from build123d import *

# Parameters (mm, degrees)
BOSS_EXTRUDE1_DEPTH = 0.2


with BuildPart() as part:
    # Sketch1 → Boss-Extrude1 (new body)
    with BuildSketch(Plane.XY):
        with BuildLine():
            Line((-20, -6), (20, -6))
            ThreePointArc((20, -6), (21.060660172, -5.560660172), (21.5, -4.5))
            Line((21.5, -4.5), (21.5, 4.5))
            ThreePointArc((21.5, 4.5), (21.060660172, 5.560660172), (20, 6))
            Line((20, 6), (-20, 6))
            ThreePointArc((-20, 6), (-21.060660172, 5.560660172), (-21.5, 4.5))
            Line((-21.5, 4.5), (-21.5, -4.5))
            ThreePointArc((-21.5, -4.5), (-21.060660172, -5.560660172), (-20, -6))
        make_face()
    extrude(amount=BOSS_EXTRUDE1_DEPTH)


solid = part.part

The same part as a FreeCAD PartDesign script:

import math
import FreeCAD as App
import Part
import Sketcher
from FreeCAD import Vector

doc = App.newDocument("Part")
body = doc.addObject("PartDesign::Body", "Body")

# Sketch on XY plane
sketch1 = body.newObject("Sketcher::SketchObject", "Sketch")
sketch1.AttachmentSupport = (doc.getObject("XY_Plane"), [""])
sketch1.MapMode = "FlatFace"
sketch1.addGeometry([
    Part.LineSegment(Vector(-20, -6, 0), Vector(20, -6, 0)),  # 0
    Part.ArcOfCircle(Part.Circle(Vector(20, -4.5, 0), Vector(0, 0, 1), 1.5), math.radians(-90), math.radians(0)),  # 1
    Part.LineSegment(Vector(21.5, -4.5, 0), Vector(21.5, 4.5, 0)),  # 2
    Part.ArcOfCircle(Part.Circle(Vector(20, 4.5, 0), Vector(0, 0, 1), 1.5), math.radians(0), math.radians(90)),  # 3
    Part.LineSegment(Vector(20, 6, 0), Vector(-20, 6, 0)),  # 4
    Part.ArcOfCircle(Part.Circle(Vector(-20, 4.5, 0), Vector(0, 0, 1), 1.5), math.radians(90), math.radians(180)),  # 5
    Part.LineSegment(Vector(-21.5, 4.5, 0), Vector(-21.5, -4.5, 0)),  # 6
    Part.ArcOfCircle(Part.Circle(Vector(-20, -4.5, 0), Vector(0, 0, 1), 1.5), math.radians(180), math.radians(270)),  # 7
], False)
sketch1.addConstraint([
    Sketcher.Constraint("Tangent", 0, 2, 1, 1),
    Sketcher.Constraint("Tangent", 1, 2, 2, 1),
    Sketcher.Constraint("Tangent", 2, 2, 3, 1),
    Sketcher.Constraint("Tangent", 3, 2, 4, 1),
    Sketcher.Constraint("Tangent", 4, 2, 5, 1),
    Sketcher.Constraint("Tangent", 5, 2, 6, 1),
    Sketcher.Constraint("Tangent", 6, 2, 7, 1),
    Sketcher.Constraint("Tangent", 7, 2, 0, 1),
    Sketcher.Constraint("Horizontal", 0),
    Sketcher.Constraint("Vertical", 2),
    Sketcher.Constraint("Horizontal", 4),
    Sketcher.Constraint("Vertical", 6),
    Sketcher.Constraint("Equal", 1, 3),
    Sketcher.Constraint("Equal", 3, 5),
    Sketcher.Constraint("Equal", 5, 7),
    Sketcher.Constraint("Symmetric", 1, 3, 5, 3, -1, 1),
    Sketcher.Constraint("Radius", 1, 1.5),
    Sketcher.Constraint("DistanceX", 0, 1, 0, 2, 40.0),
    Sketcher.Constraint("DistanceY", 2, 1, 2, 2, 9.0),
])
pad1 = body.newObject("PartDesign::Pad", "Pad")
pad1.Profile = sketch1
pad1.Length = 0.2

doc.recompute()
